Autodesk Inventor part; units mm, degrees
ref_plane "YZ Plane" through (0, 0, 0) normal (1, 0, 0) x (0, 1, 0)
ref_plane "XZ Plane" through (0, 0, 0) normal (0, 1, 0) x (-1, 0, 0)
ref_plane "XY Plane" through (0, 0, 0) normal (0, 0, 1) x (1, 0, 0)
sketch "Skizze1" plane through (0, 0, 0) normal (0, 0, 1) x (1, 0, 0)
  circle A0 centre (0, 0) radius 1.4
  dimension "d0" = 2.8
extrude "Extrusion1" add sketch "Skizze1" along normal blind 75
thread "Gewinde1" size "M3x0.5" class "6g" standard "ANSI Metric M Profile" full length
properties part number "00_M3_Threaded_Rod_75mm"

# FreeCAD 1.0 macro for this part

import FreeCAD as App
import Part
import Sketcher

doc = App.newDocument("Part")
body = doc.addObject("PartDesign::Body", "Body")

# Sketch on XY plane
sketch1 = body.newObject("Sketcher::SketchObject", "Sketch")
sketch1.AttachmentSupport = (doc.getObject("XY_Plane"), [""])
sketch1.MapMode = "FlatFace"
sketch1.addGeometry(Part.Circle(App.Vector(0, 0, 0), App.Vector(0, 0, 1), 1.4), False)
sketch1.addConstraint(Sketcher.Constraint("Coincident", 0, 3, -1, 1))
sketch1.addConstraint(Sketcher.Constraint("Diameter", 0, 2.8))
pad1 = body.newObject("PartDesign::Pad", "Pad")
pad1.Profile = sketch1
pad1.Length = 75

doc.recompute()
